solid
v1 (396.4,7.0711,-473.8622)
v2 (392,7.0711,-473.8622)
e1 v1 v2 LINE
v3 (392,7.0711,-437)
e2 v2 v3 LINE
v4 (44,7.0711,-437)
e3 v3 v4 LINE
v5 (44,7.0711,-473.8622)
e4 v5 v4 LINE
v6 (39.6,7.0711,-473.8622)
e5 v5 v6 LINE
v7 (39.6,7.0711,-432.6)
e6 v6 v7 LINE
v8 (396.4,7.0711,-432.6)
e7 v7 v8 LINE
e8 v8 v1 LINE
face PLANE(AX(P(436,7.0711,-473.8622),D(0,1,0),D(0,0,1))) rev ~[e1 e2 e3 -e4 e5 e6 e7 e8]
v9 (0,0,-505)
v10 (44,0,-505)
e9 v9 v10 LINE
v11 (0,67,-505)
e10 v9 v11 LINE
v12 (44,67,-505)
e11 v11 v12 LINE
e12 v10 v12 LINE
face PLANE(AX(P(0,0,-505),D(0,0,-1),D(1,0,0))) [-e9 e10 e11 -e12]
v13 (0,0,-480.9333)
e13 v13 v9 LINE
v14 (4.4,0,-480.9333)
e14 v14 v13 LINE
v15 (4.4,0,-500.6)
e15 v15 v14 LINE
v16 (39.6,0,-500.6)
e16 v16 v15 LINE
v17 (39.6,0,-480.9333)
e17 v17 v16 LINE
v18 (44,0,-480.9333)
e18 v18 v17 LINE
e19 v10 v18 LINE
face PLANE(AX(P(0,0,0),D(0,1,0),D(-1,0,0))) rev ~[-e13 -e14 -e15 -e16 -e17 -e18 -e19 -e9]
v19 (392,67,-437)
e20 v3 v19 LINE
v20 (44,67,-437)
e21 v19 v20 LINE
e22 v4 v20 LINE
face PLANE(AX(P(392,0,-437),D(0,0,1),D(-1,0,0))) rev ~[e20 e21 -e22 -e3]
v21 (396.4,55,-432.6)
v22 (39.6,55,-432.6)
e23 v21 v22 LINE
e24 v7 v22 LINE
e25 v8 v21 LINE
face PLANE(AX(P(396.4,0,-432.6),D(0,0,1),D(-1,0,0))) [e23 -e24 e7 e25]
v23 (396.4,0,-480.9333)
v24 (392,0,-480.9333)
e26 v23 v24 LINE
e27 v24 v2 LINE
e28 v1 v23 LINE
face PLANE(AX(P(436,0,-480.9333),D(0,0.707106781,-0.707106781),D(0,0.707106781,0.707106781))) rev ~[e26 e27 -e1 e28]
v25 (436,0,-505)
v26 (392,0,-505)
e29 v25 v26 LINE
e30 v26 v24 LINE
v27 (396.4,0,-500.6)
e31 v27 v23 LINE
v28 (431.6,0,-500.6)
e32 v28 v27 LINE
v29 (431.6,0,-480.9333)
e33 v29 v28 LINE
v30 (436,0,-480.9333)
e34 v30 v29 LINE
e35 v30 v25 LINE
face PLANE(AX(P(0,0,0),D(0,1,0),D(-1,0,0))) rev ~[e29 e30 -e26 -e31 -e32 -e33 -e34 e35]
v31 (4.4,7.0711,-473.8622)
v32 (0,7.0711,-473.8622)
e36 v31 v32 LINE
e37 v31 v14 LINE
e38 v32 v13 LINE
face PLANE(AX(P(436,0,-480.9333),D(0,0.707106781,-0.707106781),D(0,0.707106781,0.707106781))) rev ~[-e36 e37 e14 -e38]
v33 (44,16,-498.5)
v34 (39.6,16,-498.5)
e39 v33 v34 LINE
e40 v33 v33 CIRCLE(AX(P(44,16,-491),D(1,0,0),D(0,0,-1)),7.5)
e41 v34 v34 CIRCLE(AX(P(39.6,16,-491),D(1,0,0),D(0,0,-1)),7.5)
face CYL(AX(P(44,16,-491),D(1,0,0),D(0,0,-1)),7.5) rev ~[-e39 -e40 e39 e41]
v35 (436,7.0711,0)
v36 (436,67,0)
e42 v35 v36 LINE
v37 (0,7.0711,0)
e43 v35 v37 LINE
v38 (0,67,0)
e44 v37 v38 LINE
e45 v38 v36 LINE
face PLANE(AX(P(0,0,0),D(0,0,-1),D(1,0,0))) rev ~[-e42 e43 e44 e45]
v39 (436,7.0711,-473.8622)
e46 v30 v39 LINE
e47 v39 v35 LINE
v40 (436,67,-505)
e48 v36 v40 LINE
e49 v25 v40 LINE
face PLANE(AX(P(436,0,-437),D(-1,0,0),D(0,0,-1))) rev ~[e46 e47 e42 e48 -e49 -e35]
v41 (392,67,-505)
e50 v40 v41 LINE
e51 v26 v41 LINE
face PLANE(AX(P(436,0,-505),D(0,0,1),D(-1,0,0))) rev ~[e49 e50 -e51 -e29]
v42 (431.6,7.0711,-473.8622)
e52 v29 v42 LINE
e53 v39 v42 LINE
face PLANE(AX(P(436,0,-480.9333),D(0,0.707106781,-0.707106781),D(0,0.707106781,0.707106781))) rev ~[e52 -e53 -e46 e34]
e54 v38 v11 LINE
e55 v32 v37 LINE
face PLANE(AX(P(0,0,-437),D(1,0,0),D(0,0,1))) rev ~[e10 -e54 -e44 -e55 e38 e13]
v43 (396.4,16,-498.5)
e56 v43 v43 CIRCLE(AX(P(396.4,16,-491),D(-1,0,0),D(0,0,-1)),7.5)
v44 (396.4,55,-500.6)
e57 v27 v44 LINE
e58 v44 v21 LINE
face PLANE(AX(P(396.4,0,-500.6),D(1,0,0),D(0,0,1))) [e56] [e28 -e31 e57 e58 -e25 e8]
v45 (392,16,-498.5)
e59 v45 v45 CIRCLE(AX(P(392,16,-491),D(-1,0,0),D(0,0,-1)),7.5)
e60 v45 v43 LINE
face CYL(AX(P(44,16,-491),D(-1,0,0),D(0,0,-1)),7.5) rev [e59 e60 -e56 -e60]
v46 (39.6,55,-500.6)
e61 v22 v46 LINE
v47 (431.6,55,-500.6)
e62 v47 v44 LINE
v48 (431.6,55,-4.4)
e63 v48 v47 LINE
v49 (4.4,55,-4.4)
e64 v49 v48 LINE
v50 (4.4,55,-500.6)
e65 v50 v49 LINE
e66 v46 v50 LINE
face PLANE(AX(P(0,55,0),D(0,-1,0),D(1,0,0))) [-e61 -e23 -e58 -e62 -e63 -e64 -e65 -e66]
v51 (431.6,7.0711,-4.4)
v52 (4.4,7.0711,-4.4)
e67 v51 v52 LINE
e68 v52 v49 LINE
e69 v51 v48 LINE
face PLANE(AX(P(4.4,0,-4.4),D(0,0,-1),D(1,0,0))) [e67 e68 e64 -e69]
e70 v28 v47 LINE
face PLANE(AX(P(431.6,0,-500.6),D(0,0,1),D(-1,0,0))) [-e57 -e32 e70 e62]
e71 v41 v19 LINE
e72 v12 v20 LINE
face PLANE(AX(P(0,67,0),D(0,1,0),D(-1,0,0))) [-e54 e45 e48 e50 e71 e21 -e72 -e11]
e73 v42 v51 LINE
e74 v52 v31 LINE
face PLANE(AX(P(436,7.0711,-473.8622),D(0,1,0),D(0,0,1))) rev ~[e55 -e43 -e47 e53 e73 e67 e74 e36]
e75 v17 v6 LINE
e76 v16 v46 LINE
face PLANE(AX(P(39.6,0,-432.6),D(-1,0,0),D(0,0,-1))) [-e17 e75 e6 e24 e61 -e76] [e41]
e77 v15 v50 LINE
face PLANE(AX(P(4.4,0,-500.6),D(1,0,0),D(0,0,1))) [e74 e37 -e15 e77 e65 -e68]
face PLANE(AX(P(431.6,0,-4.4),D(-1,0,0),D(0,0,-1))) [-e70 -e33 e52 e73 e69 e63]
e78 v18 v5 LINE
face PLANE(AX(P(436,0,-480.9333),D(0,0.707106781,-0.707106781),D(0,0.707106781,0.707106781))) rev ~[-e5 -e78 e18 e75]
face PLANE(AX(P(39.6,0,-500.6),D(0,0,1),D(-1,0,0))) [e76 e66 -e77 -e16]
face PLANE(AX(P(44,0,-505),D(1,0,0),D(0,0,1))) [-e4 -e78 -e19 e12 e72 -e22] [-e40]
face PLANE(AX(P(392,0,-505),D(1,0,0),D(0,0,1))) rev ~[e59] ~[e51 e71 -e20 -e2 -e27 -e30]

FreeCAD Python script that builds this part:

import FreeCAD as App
import Part
import Sketcher

V = App.Vector
Q = App.Units.Quantity

doc = App.newDocument("Part")
body = doc.addObject("PartDesign::Body", "Body")

# Sketch on XZ plane
sketch1 = body.newObject("Sketcher::SketchObject", "Sketch")
sketch1.AttachmentSupport = (doc.getObject("XZ_Plane"), [""])
sketch1.MapMode = "FlatFace"
sketch1.addGeometry([
    Part.LineSegment(V(0, -505, 0), V(0, 0, 0)),  # 0
    Part.LineSegment(V(0, 0, 0), V(436, 0, 0)),  # 1
    Part.LineSegment(V(436, 0, 0), V(436, -505, 0)),  # 2
    Part.LineSegment(V(436, -505, 0), V(392, -505, 0)),  # 3
    Part.LineSegment(V(392, -505, 0), V(392, -437, 0)),  # 4
    Part.LineSegment(V(392, -437, 0), V(44, -437, 0)),  # 5
    Part.LineSegment(V(44, -437, 0), V(44, -505, 0)),  # 6
    Part.LineSegment(V(44, -505, 0), V(0, -505, 0)),  # 7
], False)
sketch1.addConstraint([
    Sketcher.Constraint("Coincident", 0, 2, 1, 1),
    Sketcher.Constraint("Coincident", 1, 2, 2, 1),
    Sketcher.Constraint("Coincident", 2, 2, 3, 1),
    Sketcher.Constraint("Coincident", 3, 2, 4, 1),
    Sketcher.Constraint("Coincident", 4, 2, 5, 1),
    Sketcher.Constraint("Coincident", 5, 2, 6, 1),
    Sketcher.Constraint("Coincident", 6, 2, 7, 1),
    Sketcher.Constraint("Coincident", 7, 2, 0, 1),
    Sketcher.Constraint("Vertical", 0),
    Sketcher.Constraint("Horizontal", 1),
    Sketcher.Constraint("Vertical", 2),
    Sketcher.Constraint("Horizontal", 3),
    Sketcher.Constraint("Vertical", 4),
    Sketcher.Constraint("Horizontal", 5),
    Sketcher.Constraint("Vertical", 6),
    Sketcher.Constraint("Horizontal", 7),
    Sketcher.Constraint("Coincident", 0, 2, -1, 1),
    Sketcher.Constraint("Horizontal", 3, 2, 6, 2),
    Sketcher.Constraint("Equal", 3, 7),
    Sketcher.Constraint("DistanceX", 1, 1, 1, 2, 436.0),
    Sketcher.Constraint("DistanceX", 3, 2, 3, 1, 44.0),
    Sketcher.Constraint("DistanceY", 4, 1, 4, 2, 68.0),
    Sketcher.Constraint("DistanceY", 4, 2, -1, 1, 437.0),
])
pad1 = body.newObject("PartDesign::Pad", "Pad")
pad1.Profile = sketch1
pad1.Length = 67
pad1.Reversed = True

# Sketch on YZ plane
sketch2 = body.newObject("Sketcher::SketchObject", "Sketch001")
sketch2.AttachmentSupport = (doc.getObject("YZ_Plane"), [""])
sketch2.MapMode = "FlatFace"
sketch2.AttachmentOffset = App.Placement(V(0, 0, 436), App.Rotation())
sketch2.addGeometry([
    Part.LineSegment(V(0, 0, 0), V(0, -481, 0)),
    Part.LineSegment(V(0, -481, 0), V(7, -474, 0)),
    Part.LineSegment(V(7, -474, 0), V(7, 0, 0)),
    Part.LineSegment(V(7, 0, 0), V(0, 0, 0)),
], False)
sketch2.addConstraint([
    Sketcher.Constraint("Coincident", 0, 2, 1, 1),
    Sketcher.Constraint("Coincident", 1, 2, 2, 1),
    Sketcher.Constraint("Coincident", 2, 2, 3, 1),
    Sketcher.Constraint("Coincident", 3, 2, 0, 1),
    Sketcher.Constraint("Vertical", 0),
    Sketcher.Constraint("Vertical", 2),
    Sketcher.Constraint("Horizontal", 3),
    Sketcher.Constraint("Coincident", 3, 2, -1, 1),
    Sketcher.Constraint("Distance", 1, 10.0),
    Sketcher.Constraint("Angle", 1, Q("45 deg")),
    Sketcher.Constraint("DistanceY", 0, 2, 0, 1, 480.9333),
])
pocket1 = body.newObject("PartDesign::Pocket", "Pocket")
pocket1.Profile = sketch2
pocket1.Type = "ThroughAll"

# Sketch on XZ plane
sketch3 = body.newObject("Sketcher::SketchObject", "Sketch002")
sketch3.AttachmentSupport = (doc.getObject("XZ_Plane"), [""])
sketch3.MapMode = "FlatFace"
sketch3.addGeometry([
    Part.LineSegment(V(40, -433, 0), V(396, -433, 0)),  # 0
    Part.LineSegment(V(396, -433, 0), V(396, -501, 0)),  # 1
    Part.LineSegment(V(396, -501, 0), V(432, -501, 0)),  # 2
    Part.LineSegment(V(432, -501, 0), V(432, -4, 0)),  # 3
    Part.LineSegment(V(432, -4, 0), V(4, -4, 0)),  # 4
    Part.LineSegment(V(4, -4, 0), V(4, -501, 0)),  # 5
    Part.LineSegment(V(4, -501, 0), V(40, -501, 0)),  # 6
    Part.LineSegment(V(40, -501, 0), V(40, -433, 0)),  # 7
], False)
sketch3.addConstraint([
    Sketcher.Constraint("Coincident", 0, 2, 1, 1),
    Sketcher.Constraint("Coincident", 1, 2, 2, 1),
    Sketcher.Constraint("Coincident", 2, 2, 3, 1),
    Sketcher.Constraint("Coincident", 3, 2, 4, 1),
    Sketcher.Constraint("Coincident", 4, 2, 5, 1),
    Sketcher.Constraint("Coincident", 5, 2, 6, 1),
    Sketcher.Constraint("Coincident", 6, 2, 7, 1),
    Sketcher.Constraint("Coincident", 7, 2, 0, 1),
    Sketcher.Constraint("Horizontal", 0),
    Sketcher.Constraint("Vertical", 1),
    Sketcher.Constraint("Horizontal", 2),
    Sketcher.Constraint("Vertical", 3),
    Sketcher.Constraint("Horizontal", 4),
    Sketcher.Constraint("Vertical", 5),
    Sketcher.Constraint("Horizontal", 6),
    Sketcher.Constraint("Vertical", 7),
    Sketcher.Constraint("Horizontal", 2, 2, 5, 2),
    Sketcher.Constraint("Equal", 2, 6),
    Sketcher.Constraint("DistanceY", 3, 2, -1, 1, 4.4),
    Sketcher.Constraint("DistanceX", -1, 1, 4, 2, 4.4),
    Sketcher.Constraint("DistanceY", 1, 2, 1, 1, 68.0),
    Sketcher.Constraint("DistanceX", 0, 1, 0, 2, 356.8),
    Sketcher.Constraint("DistanceX", 2, 1, 2, 2, 35.2),
    Sketcher.Constraint("DistanceY", 3, 1, 3, 2, 496.2),
])
pocket2 = body.newObject("PartDesign::Pocket", "Pocket001")
pocket2.Profile = sketch3
pocket2.Length = 55

# Sketch on YZ plane
sketch4 = body.newObject("Sketcher::SketchObject", "Sketch003")
sketch4.AttachmentSupport = (doc.getObject("YZ_Plane"), [""])
sketch4.MapMode = "FlatFace"
sketch4.AttachmentOffset = App.Placement(V(0, 0, 44), App.Rotation())
sketch4.addGeometry(Part.Circle(V(16, -491, 0), V(0, 0, 1), 8), False)
sketch4.addConstraint([
    Sketcher.Constraint("Diameter", 0, 15.0),
    Sketcher.Constraint("DistanceX", -1, 1, 0, 3, 16.0),
    Sketcher.Constraint("DistanceY", 0, 3, -1, 1, 491.0),
])
pocket3 = body.newObject("PartDesign::Pocket", "Pocket002")
pocket3.Profile = sketch4
pocket3.Type = "TwoLengths"
pocket3.Length = 367.5
pocket3.Length2 = 27.5
pocket3.Reversed = True

doc.recompute()
